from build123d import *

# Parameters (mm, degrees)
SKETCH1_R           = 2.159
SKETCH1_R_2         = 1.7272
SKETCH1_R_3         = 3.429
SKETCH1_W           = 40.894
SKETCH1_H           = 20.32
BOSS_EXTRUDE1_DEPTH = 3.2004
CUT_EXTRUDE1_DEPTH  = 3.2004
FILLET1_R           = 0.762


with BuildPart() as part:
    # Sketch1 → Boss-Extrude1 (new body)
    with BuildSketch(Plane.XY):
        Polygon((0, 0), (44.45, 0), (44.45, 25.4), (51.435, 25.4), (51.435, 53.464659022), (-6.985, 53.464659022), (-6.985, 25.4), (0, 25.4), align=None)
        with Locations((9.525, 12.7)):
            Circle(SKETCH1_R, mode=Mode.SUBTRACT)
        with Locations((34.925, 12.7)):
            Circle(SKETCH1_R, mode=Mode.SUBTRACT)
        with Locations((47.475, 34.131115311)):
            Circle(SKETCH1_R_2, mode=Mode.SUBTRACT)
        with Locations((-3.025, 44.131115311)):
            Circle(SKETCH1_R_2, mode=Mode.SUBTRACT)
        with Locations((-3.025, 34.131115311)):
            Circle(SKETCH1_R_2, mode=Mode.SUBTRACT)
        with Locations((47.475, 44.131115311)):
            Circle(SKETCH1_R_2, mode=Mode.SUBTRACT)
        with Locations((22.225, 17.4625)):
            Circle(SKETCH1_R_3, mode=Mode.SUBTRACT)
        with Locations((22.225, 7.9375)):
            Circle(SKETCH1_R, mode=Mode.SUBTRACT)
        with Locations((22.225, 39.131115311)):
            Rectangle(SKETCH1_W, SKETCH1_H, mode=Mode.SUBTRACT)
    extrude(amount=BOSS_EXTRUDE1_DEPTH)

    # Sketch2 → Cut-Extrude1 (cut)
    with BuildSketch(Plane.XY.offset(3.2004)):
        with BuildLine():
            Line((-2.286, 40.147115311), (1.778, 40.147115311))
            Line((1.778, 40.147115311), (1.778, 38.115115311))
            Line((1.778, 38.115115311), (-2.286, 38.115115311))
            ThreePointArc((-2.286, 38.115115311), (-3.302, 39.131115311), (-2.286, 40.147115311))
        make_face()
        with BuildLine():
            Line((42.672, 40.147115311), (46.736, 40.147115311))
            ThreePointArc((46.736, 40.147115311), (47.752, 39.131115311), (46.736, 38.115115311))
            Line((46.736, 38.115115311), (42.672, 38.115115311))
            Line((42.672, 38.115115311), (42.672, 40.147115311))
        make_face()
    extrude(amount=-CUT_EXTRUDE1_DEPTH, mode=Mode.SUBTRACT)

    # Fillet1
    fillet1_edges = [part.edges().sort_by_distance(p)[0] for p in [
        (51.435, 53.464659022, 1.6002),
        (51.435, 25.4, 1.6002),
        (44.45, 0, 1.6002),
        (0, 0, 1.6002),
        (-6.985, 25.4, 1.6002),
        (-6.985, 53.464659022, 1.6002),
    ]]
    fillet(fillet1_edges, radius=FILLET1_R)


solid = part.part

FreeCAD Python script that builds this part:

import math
import FreeCAD as App
import Part
import Sketcher

V = App.Vector
Q = App.Units.Quantity


def edges_at(feature, points):
    """Names of the edges that pass closest to the given points."""
    edges = feature.Shape.Edges
    near = lambda p: min(range(len(edges)), key=lambda i: edges[i].distToShape(Part.Vertex(*p))[0])
    return sorted({f"Edge{near(p) + 1}" for p in points})

doc = App.newDocument("Part")
body = doc.addObject("PartDesign::Body", "Body")

# Sketch on XY plane
sketch1 = body.newObject("Sketcher::SketchObject", "Sketch")
sketch1.AttachmentSupport = (doc.getObject("XY_Plane"), [""])
sketch1.MapMode = "FlatFace"
sketch1.addGeometry([
    Part.LineSegment(V(0, 0, 0), V(44.5, 0, 0)),  # 0
    Part.LineSegment(V(44.5, 0, 0), V(44.5, 25.4, 0)),  # 1
    Part.LineSegment(V(44.5, 25.4, 0), V(51.4, 25.4, 0)),  # 2
    Part.LineSegment(V(51.4, 25.4, 0), V(51.4, 53.5, 0)),  # 3
    Part.LineSegment(V(51.4, 53.5, 0), V(-7, 53.5, 0)),  # 4
    Part.LineSegment(V(-7, 53.5, 0), V(-7, 25.4, 0)),  # 5
    Part.LineSegment(V(-7, 25.4, 0), V(0, 25.4, 0)),  # 6
    Part.LineSegment(V(0, 25.4, 0), V(0, 0, 0)),  # 7
    Part.Circle(V(9.5, 12.7, 0), V(0, 0, 1), 2.2),  # 8
    Part.Circle(V(22.2, 7.9, 0), V(0, 0, 1), 2.2),  # 9
    Part.Circle(V(34.9, 12.7, 0), V(0, 0, 1), 2.2),  # 10
    Part.Circle(V(22.2, 17.5, 0), V(0, 0, 1), 3.4),  # 11
    Part.Circle(V(-3, 34.1, 0), V(0, 0, 1), 1.7),  # 12
    Part.Circle(V(-3, 44.1, 0), V(0, 0, 1), 1.7),  # 13
    Part.Circle(V(47.5, 34.1, 0), V(0, 0, 1), 1.7),  # 14
    Part.LineSegment(V(42.7, 29, 0), V(1.8, 29, 0)),  # 15
    Part.LineSegment(V(1.8, 29, 0), V(1.8, 49.3, 0)),  # 16
    Part.LineSegment(V(1.8, 49.3, 0), V(42.7, 49.3, 0)),  # 17
    Part.LineSegment(V(42.7, 49.3, 0), V(42.7, 29, 0)),  # 18
    Part.Circle(V(47.5, 44.1, 0), V(0, 0, 1), 1.7),  # 19
], False)
sketch1.addConstraint([
    Sketcher.Constraint("Coincident", 0, 2, 1, 1),
    Sketcher.Constraint("Coincident", 1, 2, 2, 1),
    Sketcher.Constraint("Coincident", 2, 2, 3, 1),
    Sketcher.Constraint("Coincident", 3, 2, 4, 1),
    Sketcher.Constraint("Coincident", 4, 2, 5, 1),
    Sketcher.Constraint("Coincident", 5, 2, 6, 1),
    Sketcher.Constraint("Coincident", 6, 2, 7, 1),
    Sketcher.Constraint("Coincident", 7, 2, 0, 1),
    Sketcher.Constraint("Coincident", 15, 2, 16, 1),
    Sketcher.Constraint("Coincident", 16, 2, 17, 1),
    Sketcher.Constraint("Coincident", 17, 2, 18, 1),
    Sketcher.Constraint("Coincident", 18, 2, 15, 1),
    Sketcher.Constraint("Horizontal", 0),
    Sketcher.Constraint("Vertical", 1),
    Sketcher.Constraint("Horizontal", 2),
    Sketcher.Constraint("Vertical", 3),
    Sketcher.Constraint("Horizontal", 4),
    Sketcher.Constraint("Vertical", 5),
    Sketcher.Constraint("Horizontal", 6),
    Sketcher.Constraint("Vertical", 7),
    Sketcher.Constraint("Horizontal", 15),
    Sketcher.Constraint("Vertical", 16),
    Sketcher.Constraint("Horizontal", 17),
    Sketcher.Constraint("Vertical", 18),
    Sketcher.Constraint("Coincident", 7, 2, -1, 1),
    Sketcher.Constraint("Equal", 8, 9),
    Sketcher.Constraint("Equal", 9, 10),
    Sketcher.Constraint("Equal", 12, 13),
    Sketcher.Constraint("Equal", 13, 14),
    Sketcher.Constraint("Equal", 14, 19),
    Sketcher.Constraint("Horizontal", 8, 3, 10, 3),
    Sketcher.Constraint("Horizontal", 12, 3, 14, 3),
    Sketcher.Constraint("Horizontal", 13, 3, 19, 3),
    Sketcher.Constraint("Horizontal", 2, 2, 5, 2),
    Sketcher.Constraint("Vertical", 9, 3, 11, 3),
    Sketcher.Constraint("Vertical", 12, 3, 13, 3),
    Sketcher.Constraint("Vertical", 14, 3, 19, 3),
    Sketcher.Constraint("Equal", 2, 6),
    Sketcher.Constraint("Diameter", 8, Q("0.17 in")),
    Sketcher.Constraint("Diameter", 11, Q("0.27 in")),
    Sketcher.Constraint("DistanceY", 1, 1, 1, 2, Q("1 in")),
    Sketcher.Constraint("Diameter", 12, Q("0.136 in")),
    Sketcher.Constraint("DistanceX", 4, 2, 4, 1, Q("2.3 in")),
    Sketcher.Constraint("DistanceY", 16, 1, 16, 2, Q("0.8 in")),
    Sketcher.Constraint("DistanceX", 8, 3, 10, 3, Q("1 in")),
    Sketcher.Constraint("DistanceX", 0, 1, 0, 2, Q("1.75 in")),
    Sketcher.Constraint("DistanceX", 15, 2, 15, 1, Q("1.61 in")),
    Sketcher.Constraint("DistanceY", -1, 1, 8, 3, Q("0.5 in")),
    Sketcher.Constraint("DistanceX", 8, 3, 9, 3, Q("0.5 in")),
    Sketcher.Constraint("DistanceX", -1, 1, 15, 2, Q("0.07 in")),
    Sketcher.Constraint("DistanceX", 10, 3, 2, 2, Q("0.65 in")),
    Sketcher.Constraint("DistanceY", -1, 1, 9, 3, Q("0.3125 in")),
    Sketcher.Constraint("DistanceY", -1, 1, 11, 3, Q("0.6875 in")),
    Sketcher.Constraint("DistanceY", 3, 1, 3, 2, Q("28.064659 mm")),
    Sketcher.Constraint("DistanceX", 12, 3, -1, 1, Q("3.025 mm")),
    Sketcher.Constraint("DistanceX", -1, 1, 14, 3, Q("47.475 mm")),
    Sketcher.Constraint("DistanceY", 12, 3, 13, 3, Q("10 mm")),
    Sketcher.Constraint("DistanceY", 15, 2, 12, 3, Q("5.16 mm")),
    Sketcher.Constraint("DistanceY", -1, 1, 12, 3, Q("34.131115 mm")),
])
pad1 = body.newObject("PartDesign::Pad", "Pad")
pad1.Profile = sketch1
pad1.Length = Q("0.126 in")

# Sketch on XY plane
sketch2 = body.newObject("Sketcher::SketchObject", "Sketch001")
sketch2.AttachmentSupport = (doc.getObject("XY_Plane"), [""])
sketch2.MapMode = "FlatFace"
sketch2.AttachmentOffset = App.Placement(V(0, 0, 0.126 * 25.4), App.Rotation())
sketch2.addGeometry([
    Part.LineSegment(V(1.8, 40.1, 0), V(-2.3, 40.1, 0)),  # 0
    Part.ArcOfCircle(Part.Circle(V(-2.3, 39.1, 0), V(0, 0, 1), 1), math.radians(90), math.radians(270)),  # 1
    Part.LineSegment(V(-2.3, 38.1, 0), V(1.8, 38.1, 0)),  # 2
    Part.LineSegment(V(1.8, 38.1, 0), V(1.8, 40.1, 0)),  # 3
    Part.LineSegment(V(46.7, 40.1, 0), V(42.7, 40.1, 0)),  # 4
    Part.LineSegment(V(42.7, 40.1, 0), V(42.7, 38.1, 0)),  # 5
    Part.LineSegment(V(42.7, 38.1, 0), V(46.7, 38.1, 0)),  # 6
    Part.ArcOfCircle(Part.Circle(V(46.7, 39.1, 0), V(0, 0, 1), 1), math.radians(-90), math.radians(90)),  # 7
], False)
sketch2.addConstraint([
    Sketcher.Constraint("Tangent", 0, 2, 1, 1),
    Sketcher.Constraint("Tangent", 1, 2, 2, 1),
    Sketcher.Constraint("Coincident", 2, 2, 3, 1),
    Sketcher.Constraint("Coincident", 3, 2, 0, 1),
    Sketcher.Constraint("Coincident", 4, 2, 5, 1),
    Sketcher.Constraint("Coincident", 5, 2, 6, 1),
    Sketcher.Constraint("Tangent", 6, 2, 7, 1),
    Sketcher.Constraint("Tangent", 7, 2, 4, 1),
    Sketcher.Constraint("Horizontal", 0),
    Sketcher.Constraint("Horizontal", 2),
    Sketcher.Constraint("Vertical", 3),
    Sketcher.Constraint("Horizontal", 4),
    Sketcher.Constraint("Vertical", 5),
    Sketcher.Constraint("Horizontal", 6),
    Sketcher.Constraint("Equal", 1, 7),
    Sketcher.Constraint("Horizontal", 1, 3, 7, 3),
    Sketcher.Constraint("Equal", 2, 4),
    Sketcher.Constraint("Radius", 1, Q("0.04 in")),
    Sketcher.Constraint("DistanceX", 0, 2, 0, 1, Q("0.16 in")),
    Sketcher.Constraint("DistanceX", 1, 3, -1, 1, Q("0.09 in")),
    Sketcher.Constraint("DistanceX", -1, 1, 7, 3, Q("1.84 in")),
    Sketcher.Constraint("DistanceY", -1, 1, 1, 3, Q("39.131115 mm")),
])
pocket1 = body.newObject("PartDesign::Pocket", "Pocket")
pocket1.Profile = sketch2
pocket1.Length = Q("0.126 in")
doc.recompute()

fillet = body.newObject("PartDesign::Fillet", "Fillet")
fillet.Base = (pocket1, edges_at(pocket1, [
    (51.435, 53.465, 1.6),
    (51.435, 25.4, 1.6),
    (44.45, 0, 1.6),
    (0, 0, 1.6),
    (-6.985, 25.4, 1.6),
    (-6.985, 53.465, 1.6),
]))
fillet.Radius = Q("0.03 in")

doc.recompute()
